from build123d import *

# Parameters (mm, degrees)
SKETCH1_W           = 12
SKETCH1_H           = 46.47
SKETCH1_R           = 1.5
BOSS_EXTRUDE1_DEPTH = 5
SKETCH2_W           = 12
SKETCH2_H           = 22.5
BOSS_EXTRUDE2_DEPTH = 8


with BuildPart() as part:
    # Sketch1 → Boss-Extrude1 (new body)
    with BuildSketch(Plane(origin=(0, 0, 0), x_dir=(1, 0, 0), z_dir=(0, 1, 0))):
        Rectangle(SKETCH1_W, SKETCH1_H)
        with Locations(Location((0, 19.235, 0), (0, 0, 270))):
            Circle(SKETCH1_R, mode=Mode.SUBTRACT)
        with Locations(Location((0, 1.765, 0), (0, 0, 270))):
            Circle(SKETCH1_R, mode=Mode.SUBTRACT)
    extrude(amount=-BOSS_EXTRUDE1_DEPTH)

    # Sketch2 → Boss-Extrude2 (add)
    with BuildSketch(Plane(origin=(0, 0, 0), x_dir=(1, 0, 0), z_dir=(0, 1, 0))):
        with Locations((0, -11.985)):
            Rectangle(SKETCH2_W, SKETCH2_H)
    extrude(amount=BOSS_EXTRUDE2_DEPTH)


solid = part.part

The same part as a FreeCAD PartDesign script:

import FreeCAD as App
import Part
import Sketcher
from FreeCAD import Vector
Q = App.Units.Quantity


def add_polygon(sketch, points):
    """Adds a closed chain of lines whose ends are joined by coincident constraints."""
    first, n = sketch.GeometryCount, len(points)
    for a, b in zip(points, points[1:] + points[:1]):
        sketch.addGeometry(Part.LineSegment(App.Vector(*a, 0), App.Vector(*b, 0)), False)
    for i in range(n):
        sketch.addConstraint(Sketcher.Constraint("Coincident", first + i, 2, first + (i + 1) % n, 1))

doc = App.newDocument("Part")
body = doc.addObject("PartDesign::Body", "Body")

# Sketch on XZ plane
sketch1 = body.newObject("Sketcher::SketchObject", "Sketch")
sketch1.AttachmentSupport = (doc.getObject("XZ_Plane"), [""])
sketch1.MapMode = "FlatFace"
add_polygon(sketch1, [(-6, -23.235), (-6, 23.235), (6, 23.235), (6, -23.235)])  # lines 0-3
sketch1.addGeometry(Part.Circle(Vector(0, -1.765, 0), Vector(0, 0, 1), 1.5), False)  # 4
sketch1.addGeometry(Part.Circle(Vector(0, -19.235, 0), Vector(0, 0, 1), 1.5), False)  # 5
sketch1.addConstraint([
    Sketcher.Constraint("Vertical", 0),
    Sketcher.Constraint("Horizontal", 1),
    Sketcher.Constraint("Vertical", 2),
    Sketcher.Constraint("Horizontal", 3),
    Sketcher.Constraint("Equal", 4, 5),
    Sketcher.Constraint("Symmetric", 0, 2, 2, 2, -1, 1),
    Sketcher.Constraint("PointOnObject", 4, 3, -2),
    Sketcher.Constraint("PointOnObject", 5, 3, -2),
    Sketcher.Constraint("Diameter", 4, Q("3 mm")),
    Sketcher.Constraint("DistanceX", 1, 1, 1, 2, Q("12 mm")),
    Sketcher.Constraint("DistanceY", 4, 3, 0, 2, Q("25 mm")),
    Sketcher.Constraint("DistanceY", 2, 2, 5, 3, Q("4 mm")),
    Sketcher.Constraint("DistanceY", 0, 1, 0, 2, Q("46.47 mm")),
])
pad1 = body.newObject("PartDesign::Pad", "Pad")
pad1.Profile = sketch1
pad1.Length = 5

# Sketch on XZ plane
sketch2 = body.newObject("Sketcher::SketchObject", "Sketch001")
sketch2.AttachmentSupport = (doc.getObject("XZ_Plane"), [""])
sketch2.MapMode = "FlatFace"
add_polygon(sketch2, [(-6, 0.735), (-6, 23.235), (6, 23.235), (6, 0.735)])  # lines 0-3
sketch2.addConstraint([
    Sketcher.Constraint("Vertical", 0),
    Sketcher.Constraint("Horizontal", 1),
    Sketcher.Constraint("Vertical", 2),
    Sketcher.Constraint("Horizontal", 3),
    Sketcher.Constraint("DistanceX", 1, 1, 1, 2, Q("12 mm")),
    Sketcher.Constraint("DistanceY", 0, 1, 0, 2, Q("22.5 mm")),
    Sketcher.Constraint("DistanceX", 0, 2, -1, 1, Q("6 mm")),
    Sketcher.Constraint("DistanceY", -1, 1, 0, 2, Q("23.235 mm")),
])
pad2 = body.newObject("PartDesign::Pad", "Pad001")
pad2.Profile = sketch2
pad2.Length = 8
pad2.Reversed = True

doc.recompute()
